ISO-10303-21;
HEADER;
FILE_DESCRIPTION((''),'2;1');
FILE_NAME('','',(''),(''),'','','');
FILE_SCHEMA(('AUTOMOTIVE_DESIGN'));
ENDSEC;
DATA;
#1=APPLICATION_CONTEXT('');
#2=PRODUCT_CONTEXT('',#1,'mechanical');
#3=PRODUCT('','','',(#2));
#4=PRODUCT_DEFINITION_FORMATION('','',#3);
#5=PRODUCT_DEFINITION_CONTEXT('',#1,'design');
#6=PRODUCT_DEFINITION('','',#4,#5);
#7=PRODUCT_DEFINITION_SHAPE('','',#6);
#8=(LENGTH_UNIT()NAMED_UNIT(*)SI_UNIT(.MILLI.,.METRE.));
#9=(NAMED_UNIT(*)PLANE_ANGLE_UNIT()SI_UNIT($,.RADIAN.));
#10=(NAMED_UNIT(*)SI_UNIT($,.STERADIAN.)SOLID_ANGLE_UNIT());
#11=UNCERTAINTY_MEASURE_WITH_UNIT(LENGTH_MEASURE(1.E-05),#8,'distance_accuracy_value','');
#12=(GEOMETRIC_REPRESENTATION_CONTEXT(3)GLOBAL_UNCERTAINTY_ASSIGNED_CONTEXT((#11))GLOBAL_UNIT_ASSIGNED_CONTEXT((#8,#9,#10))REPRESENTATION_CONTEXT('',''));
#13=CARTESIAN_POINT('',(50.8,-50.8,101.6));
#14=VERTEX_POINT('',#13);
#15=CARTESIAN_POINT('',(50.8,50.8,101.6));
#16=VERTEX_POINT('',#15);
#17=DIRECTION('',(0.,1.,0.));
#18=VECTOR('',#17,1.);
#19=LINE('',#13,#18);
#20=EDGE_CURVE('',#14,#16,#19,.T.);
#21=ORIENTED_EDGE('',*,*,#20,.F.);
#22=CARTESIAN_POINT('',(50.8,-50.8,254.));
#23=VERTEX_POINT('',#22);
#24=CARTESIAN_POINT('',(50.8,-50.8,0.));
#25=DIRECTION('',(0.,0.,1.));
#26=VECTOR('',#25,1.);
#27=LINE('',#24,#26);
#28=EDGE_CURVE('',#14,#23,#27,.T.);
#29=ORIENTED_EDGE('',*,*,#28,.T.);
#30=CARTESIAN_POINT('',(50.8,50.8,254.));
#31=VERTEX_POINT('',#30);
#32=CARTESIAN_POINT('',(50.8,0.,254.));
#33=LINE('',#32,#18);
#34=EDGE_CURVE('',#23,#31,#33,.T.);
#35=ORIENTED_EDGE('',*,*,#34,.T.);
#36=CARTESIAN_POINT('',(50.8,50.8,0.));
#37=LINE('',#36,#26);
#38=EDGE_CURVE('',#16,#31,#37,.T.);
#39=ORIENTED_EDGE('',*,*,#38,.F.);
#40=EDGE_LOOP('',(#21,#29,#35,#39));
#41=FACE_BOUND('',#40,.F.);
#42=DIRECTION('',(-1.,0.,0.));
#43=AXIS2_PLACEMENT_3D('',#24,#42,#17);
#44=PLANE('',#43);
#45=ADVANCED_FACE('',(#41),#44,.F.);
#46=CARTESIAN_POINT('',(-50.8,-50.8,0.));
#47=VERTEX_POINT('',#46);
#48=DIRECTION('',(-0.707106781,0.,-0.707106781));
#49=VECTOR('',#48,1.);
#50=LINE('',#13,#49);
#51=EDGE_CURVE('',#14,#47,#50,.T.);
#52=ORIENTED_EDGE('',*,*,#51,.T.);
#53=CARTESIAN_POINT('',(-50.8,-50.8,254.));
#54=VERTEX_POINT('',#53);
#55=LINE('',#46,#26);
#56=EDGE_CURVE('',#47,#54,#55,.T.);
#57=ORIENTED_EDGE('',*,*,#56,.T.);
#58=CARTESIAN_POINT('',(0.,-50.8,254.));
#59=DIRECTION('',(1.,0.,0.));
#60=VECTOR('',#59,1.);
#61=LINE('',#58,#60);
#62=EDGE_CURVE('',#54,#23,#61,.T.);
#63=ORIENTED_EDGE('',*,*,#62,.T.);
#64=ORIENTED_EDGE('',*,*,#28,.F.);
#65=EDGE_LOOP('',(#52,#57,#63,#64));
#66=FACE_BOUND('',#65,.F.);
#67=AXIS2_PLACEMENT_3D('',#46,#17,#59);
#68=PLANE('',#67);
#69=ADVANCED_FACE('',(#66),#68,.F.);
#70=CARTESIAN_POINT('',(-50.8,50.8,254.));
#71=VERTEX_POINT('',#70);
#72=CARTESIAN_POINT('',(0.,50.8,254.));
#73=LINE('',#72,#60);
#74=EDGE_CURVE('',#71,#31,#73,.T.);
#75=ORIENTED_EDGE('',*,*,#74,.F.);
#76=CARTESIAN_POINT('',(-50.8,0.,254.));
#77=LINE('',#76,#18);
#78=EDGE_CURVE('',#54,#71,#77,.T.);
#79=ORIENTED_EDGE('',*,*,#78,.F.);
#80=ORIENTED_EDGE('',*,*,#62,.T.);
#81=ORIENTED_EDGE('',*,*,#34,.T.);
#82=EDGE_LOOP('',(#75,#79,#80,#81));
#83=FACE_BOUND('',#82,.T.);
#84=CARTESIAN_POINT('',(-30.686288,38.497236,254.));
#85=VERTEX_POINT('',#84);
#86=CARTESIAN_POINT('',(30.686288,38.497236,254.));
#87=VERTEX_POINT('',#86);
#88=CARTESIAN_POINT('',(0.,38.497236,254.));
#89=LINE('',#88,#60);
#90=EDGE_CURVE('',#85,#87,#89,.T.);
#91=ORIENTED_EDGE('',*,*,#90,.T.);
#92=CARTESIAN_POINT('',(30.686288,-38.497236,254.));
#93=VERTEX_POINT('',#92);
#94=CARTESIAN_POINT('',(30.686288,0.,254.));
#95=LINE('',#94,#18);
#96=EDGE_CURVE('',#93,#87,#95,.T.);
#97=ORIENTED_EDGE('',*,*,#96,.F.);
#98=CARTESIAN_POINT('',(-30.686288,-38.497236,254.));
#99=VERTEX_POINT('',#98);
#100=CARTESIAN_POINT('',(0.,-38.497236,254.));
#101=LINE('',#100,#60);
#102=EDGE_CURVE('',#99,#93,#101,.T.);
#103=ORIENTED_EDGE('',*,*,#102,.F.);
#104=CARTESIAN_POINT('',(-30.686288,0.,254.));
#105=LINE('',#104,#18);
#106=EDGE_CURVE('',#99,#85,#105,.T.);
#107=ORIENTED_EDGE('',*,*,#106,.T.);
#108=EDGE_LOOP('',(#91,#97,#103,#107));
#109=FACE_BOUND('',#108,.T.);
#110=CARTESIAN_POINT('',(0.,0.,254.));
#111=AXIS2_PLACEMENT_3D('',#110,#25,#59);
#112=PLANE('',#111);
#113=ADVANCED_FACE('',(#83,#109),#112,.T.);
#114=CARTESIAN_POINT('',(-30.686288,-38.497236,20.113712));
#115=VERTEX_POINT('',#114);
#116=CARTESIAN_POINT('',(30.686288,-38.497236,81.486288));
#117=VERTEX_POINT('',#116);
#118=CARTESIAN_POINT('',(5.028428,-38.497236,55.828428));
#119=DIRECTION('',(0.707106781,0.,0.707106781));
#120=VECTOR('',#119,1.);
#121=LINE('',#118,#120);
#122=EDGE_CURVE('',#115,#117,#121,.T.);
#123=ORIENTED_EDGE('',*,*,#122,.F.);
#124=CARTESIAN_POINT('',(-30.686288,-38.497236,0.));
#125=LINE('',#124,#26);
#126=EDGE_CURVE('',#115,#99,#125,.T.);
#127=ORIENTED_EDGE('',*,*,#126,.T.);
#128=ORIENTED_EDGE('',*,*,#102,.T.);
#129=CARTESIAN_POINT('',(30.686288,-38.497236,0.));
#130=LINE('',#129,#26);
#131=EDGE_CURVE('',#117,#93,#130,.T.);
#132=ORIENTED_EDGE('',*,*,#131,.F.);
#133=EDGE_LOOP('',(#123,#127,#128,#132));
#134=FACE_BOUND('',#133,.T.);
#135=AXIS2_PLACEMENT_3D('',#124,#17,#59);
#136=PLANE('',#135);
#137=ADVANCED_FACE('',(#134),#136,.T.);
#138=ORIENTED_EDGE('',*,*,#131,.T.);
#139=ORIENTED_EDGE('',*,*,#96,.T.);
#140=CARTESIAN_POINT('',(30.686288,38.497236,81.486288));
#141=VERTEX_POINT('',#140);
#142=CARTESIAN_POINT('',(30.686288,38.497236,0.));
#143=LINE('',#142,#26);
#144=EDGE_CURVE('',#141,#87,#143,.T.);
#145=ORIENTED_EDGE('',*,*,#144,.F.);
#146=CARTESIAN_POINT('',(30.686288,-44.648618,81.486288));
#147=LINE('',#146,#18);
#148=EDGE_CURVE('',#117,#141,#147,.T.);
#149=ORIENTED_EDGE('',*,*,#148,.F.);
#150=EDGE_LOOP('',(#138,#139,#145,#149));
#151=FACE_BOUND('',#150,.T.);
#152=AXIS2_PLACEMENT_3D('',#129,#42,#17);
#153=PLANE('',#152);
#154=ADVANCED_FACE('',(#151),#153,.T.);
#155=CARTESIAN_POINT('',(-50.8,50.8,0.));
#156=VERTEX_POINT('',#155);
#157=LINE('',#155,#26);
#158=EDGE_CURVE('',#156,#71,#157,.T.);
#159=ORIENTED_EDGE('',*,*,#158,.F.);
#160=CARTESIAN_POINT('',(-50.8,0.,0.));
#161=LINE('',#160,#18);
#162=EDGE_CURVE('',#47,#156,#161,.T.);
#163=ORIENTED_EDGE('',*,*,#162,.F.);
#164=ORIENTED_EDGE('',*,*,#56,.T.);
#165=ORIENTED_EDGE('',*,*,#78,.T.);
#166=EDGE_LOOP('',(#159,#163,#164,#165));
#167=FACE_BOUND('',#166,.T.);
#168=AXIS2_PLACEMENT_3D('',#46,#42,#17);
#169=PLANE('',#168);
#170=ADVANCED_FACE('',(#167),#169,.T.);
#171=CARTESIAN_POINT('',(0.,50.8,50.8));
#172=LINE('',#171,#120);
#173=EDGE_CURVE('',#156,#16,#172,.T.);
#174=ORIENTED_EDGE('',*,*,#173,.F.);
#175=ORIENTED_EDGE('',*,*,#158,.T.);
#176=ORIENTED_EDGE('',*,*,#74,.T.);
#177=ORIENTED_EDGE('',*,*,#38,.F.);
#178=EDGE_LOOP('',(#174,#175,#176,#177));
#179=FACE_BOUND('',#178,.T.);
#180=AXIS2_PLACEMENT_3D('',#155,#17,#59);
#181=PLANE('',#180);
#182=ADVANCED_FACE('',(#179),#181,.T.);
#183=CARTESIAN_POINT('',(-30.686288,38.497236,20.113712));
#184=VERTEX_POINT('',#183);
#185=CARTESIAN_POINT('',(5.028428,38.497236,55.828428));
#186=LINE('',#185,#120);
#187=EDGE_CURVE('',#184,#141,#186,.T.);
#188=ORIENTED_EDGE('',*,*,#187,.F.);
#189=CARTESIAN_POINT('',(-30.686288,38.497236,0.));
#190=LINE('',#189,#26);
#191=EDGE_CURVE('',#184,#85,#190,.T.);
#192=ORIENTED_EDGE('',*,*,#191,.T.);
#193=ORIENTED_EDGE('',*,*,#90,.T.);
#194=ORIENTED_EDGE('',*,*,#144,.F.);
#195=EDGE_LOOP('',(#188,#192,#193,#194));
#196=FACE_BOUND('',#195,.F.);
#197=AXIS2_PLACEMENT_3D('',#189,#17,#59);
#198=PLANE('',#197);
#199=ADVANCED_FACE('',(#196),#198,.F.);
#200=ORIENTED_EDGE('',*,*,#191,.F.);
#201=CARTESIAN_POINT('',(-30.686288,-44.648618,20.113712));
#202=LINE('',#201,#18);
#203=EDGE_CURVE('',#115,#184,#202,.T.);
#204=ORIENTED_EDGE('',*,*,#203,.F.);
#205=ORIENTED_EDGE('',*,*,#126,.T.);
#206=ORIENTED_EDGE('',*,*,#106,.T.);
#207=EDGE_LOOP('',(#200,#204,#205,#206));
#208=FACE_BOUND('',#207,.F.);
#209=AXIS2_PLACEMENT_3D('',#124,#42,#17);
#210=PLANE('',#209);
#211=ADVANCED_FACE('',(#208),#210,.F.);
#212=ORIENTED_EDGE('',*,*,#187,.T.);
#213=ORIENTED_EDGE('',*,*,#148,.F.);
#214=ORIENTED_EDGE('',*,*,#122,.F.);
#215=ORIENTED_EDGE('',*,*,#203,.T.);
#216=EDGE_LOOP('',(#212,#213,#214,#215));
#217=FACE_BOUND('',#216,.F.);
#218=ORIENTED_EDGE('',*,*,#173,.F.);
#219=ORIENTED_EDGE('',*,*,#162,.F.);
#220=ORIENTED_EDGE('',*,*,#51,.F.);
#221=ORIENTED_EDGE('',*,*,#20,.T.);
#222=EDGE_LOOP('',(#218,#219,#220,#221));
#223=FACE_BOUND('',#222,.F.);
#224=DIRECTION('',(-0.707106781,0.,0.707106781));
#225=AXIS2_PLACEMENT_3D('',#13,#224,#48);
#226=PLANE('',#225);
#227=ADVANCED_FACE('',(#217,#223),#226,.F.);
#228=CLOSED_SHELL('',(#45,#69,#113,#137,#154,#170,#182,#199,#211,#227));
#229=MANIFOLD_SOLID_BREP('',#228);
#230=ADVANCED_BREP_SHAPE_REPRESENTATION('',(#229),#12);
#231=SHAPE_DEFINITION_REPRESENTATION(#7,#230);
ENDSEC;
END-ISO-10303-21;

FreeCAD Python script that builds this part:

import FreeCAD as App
import Part
import Sketcher
from FreeCAD import Vector
Q = App.Units.Quantity

doc = App.newDocument("Part")
body = doc.addObject("PartDesign::Body", "Body")

# Sketch on XY plane
sketch1 = body.newObject("Sketcher::SketchObject", "Sketch")
sketch1.AttachmentSupport = (doc.getObject("XY_Plane"), [""])
sketch1.MapMode = "FlatFace"
sketch1.addGeometry(Part.LineSegment(Vector(-25, 25, 0), Vector(-25, -25, 0)), False)
sketch1.addGeometry(Part.LineSegment(Vector(-25, -25, 0), Vector(25, -25, 0)), False)
sketch1.addGeometry(Part.LineSegment(Vector(25, -25, 0), Vector(25, 25, 0)), False)
sketch1.addGeometry(Part.LineSegment(Vector(25, 25, 0), Vector(-25, 25, 0)), False)
sketch1.addGeometry(Part.LineSegment(Vector(24, -24, 0), Vector(-24, -24, 0)), False)
sketch1.addGeometry(Part.LineSegment(Vector(-24, -24, 0), Vector(-24, 24, 0)), False)
sketch1.addGeometry(Part.LineSegment(Vector(-24, 24, 0), Vector(24, 24, 0)), False)
sketch1.addGeometry(Part.LineSegment(Vector(24, 24, 0), Vector(24, -24, 0)), False)
sketch1.addConstraint(Sketcher.Constraint("Coincident", 0, 2, 1, 1))
sketch1.addConstraint(Sketcher.Constraint("Coincident", 1, 2, 2, 1))
sketch1.addConstraint(Sketcher.Constraint("Coincident", 2, 2, 3, 1))
sketch1.addConstraint(Sketcher.Constraint("Coincident", 3, 2, 0, 1))
sketch1.addConstraint(Sketcher.Constraint("Coincident", 4, 2, 5, 1))
sketch1.addConstraint(Sketcher.Constraint("Coincident", 5, 2, 6, 1))
sketch1.addConstraint(Sketcher.Constraint("Coincident", 6, 2, 7, 1))
sketch1.addConstraint(Sketcher.Constraint("Coincident", 7, 2, 4, 1))
sketch1.addConstraint(Sketcher.Constraint("Vertical", 0))
sketch1.addConstraint(Sketcher.Constraint("Horizontal", 1))
sketch1.addConstraint(Sketcher.Constraint("Vertical", 2))
sketch1.addConstraint(Sketcher.Constraint("Horizontal", 3))
sketch1.addConstraint(Sketcher.Constraint("Horizontal", 4))
sketch1.addConstraint(Sketcher.Constraint("Vertical", 5))
sketch1.addConstraint(Sketcher.Constraint("Horizontal", 6))
sketch1.addConstraint(Sketcher.Constraint("Vertical", 7))
sketch1.addConstraint(Sketcher.Constraint("Symmetric", 0, 2, 2, 2, -1, 1))
sketch1.addConstraint(Sketcher.Constraint("Symmetric", 4, 2, 6, 2, -1, 1))
sketch1.addConstraint(Sketcher.Constraint("Equal", 3, 0))
sketch1.addConstraint(Sketcher.Constraint("Equal", 6, 5))
sketch1.addConstraint(Sketcher.Constraint("DistanceX", 1, 1, 1, 2, Q("2 in")))
sketch1.addConstraint(Sketcher.Constraint("DistanceX", 4, 2, 4, 1, Q("1.875 in")))
pad1 = body.newObject("PartDesign::Pad", "Pad")
pad1.Profile = sketch1
pad1.Length = Q("20 in")

# Sketch on XZ plane
sketch2 = body.newObject("Sketcher::SketchObject", "Sketch001")
sketch2.AttachmentSupport = (doc.getObject("XZ_Plane"), [""])
sketch2.MapMode = "FlatFace"
sketch2.AttachmentOffset = App.Placement(Vector(0, 0, 1 * 25.4), App.Rotation())
sketch2.addGeometry(Part.LineSegment(Vector(25, 46, 0), Vector(-25, 0, 0)), False)
sketch2.addGeometry(Part.LineSegment(Vector(-25, 0, 0), Vector(25, 0, 0)), False)
sketch2.addGeometry(Part.LineSegment(Vector(25, 0, 0), Vector(25, 46, 0)), False)
sketch2.addConstraint(Sketcher.Constraint("Coincident", 0, 2, 1, 1))
sketch2.addConstraint(Sketcher.Constraint("Coincident", 1, 2, 2, 1))
sketch2.addConstraint(Sketcher.Constraint("Coincident", 2, 2, 0, 1))
sketch2.addConstraint(Sketcher.Constraint("Horizontal", 1))
sketch2.addConstraint(Sketcher.Constraint("Vertical", 2))
sketch2.addConstraint(Sketcher.Constraint("Symmetric", 0, 2, 1, 2, -1, 1))
sketch2.addConstraint(Sketcher.Constraint("DistanceX", 1, 1, 1, 2, Q("2 in")))
sketch2.addConstraint(Sketcher.Constraint("DistanceY", 2, 1, 2, 2, Q("46.00206 mm")))
pocket1 = body.newObject("PartDesign::Pocket", "Pocket")
pocket1.Profile = sketch2
pocket1.Type = "ThroughAll"

# Sketch on XZ plane
sketch3 = body.newObject("Sketcher::SketchObject", "Sketch002")
sketch3.AttachmentSupport = (doc.getObject("XZ_Plane"), [""])
sketch3.MapMode = "FlatFace"
sketch3.AttachmentOffset = App.Placement(Vector(0, 0, 1 * 25.4), App.Rotation())
sketch3.addGeometry(Part.LineSegment(Vector(25, 508, 0), Vector(-25, 508, 0)), False)
sketch3.addGeometry(Part.LineSegment(Vector(-25, 508, 0), Vector(25, 469, 0)), False)
sketch3.addGeometry(Part.LineSegment(Vector(25, 469, 0), Vector(25, 508, 0)), False)
sketch3.addConstraint(Sketcher.Constraint("Coincident", 0, 2, 1, 1))
sketch3.addConstraint(Sketcher.Constraint("Coincident", 1, 2, 2, 1))
sketch3.addConstraint(Sketcher.Constraint("Coincident", 2, 2, 0, 1))
sketch3.addConstraint(Sketcher.Constraint("Horizontal", 0))
sketch3.addConstraint(Sketcher.Constraint("Vertical", 2))
sketch3.addConstraint(Sketcher.Constraint("DistanceX", 0, 2, 0, 1, Q("2 in")))
sketch3.addConstraint(Sketcher.Constraint("DistanceX", 0, 2, -1, 1, Q("1 in")))
sketch3.addConstraint(Sketcher.Constraint("DistanceY", -1, 1, 0, 2, Q("20 in")))
sketch3.addConstraint(Sketcher.Constraint("DistanceY", 2, 1, 2, 2, Q("38.566752 mm")))
pocket2 = body.newObject("PartDesign::Pocket", "Pocket001")
pocket2.Profile = sketch3
pocket2.Type = "ThroughAll"
body2 = doc.addObject("PartDesign::Body", "Body001")

# Sketch on XY plane
sketch4 = body2.newObject("Sketcher::SketchObject", "Sketch003")
sketch4.AttachmentSupport = (doc.getObject("XY_Plane001"), [""])
sketch4.MapMode = "FlatFace"
sketch4.addGeometry(Part.LineSegment(Vector(-51, 51, 0), Vector(-51, -51, 0)), False)
sketch4.addGeometry(Part.LineSegment(Vector(-51, -51, 0), Vector(51, -51, 0)), False)
sketch4.addGeometry(Part.LineSegment(Vector(51, -51, 0), Vector(51, 51, 0)), False)
sketch4.addGeometry(Part.LineSegment(Vector(51, 51, 0), Vector(-51, 51, 0)), False)
sketch4.addGeometry(Part.LineSegment(Vector(31, -38, 0), Vector(-31, -38, 0)), False)
sketch4.addGeometry(Part.LineSegment(Vector(-31, -38, 0), Vector(-31, 38, 0)), False)
sketch4.addGeometry(Part.LineSegment(Vector(-31, 38, 0), Vector(31, 38, 0)), False)
sketch4.addGeometry(Part.LineSegment(Vector(31, 38, 0), Vector(31, -38, 0)), False)
sketch4.addConstraint(Sketcher.Constraint("Coincident", 0, 2, 1, 1))
sketch4.addConstraint(Sketcher.Constraint("Coincident", 1, 2, 2, 1))
sketch4.addConstraint(Sketcher.Constraint("Coincident", 2, 2, 3, 1))
sketch4.addConstraint(Sketcher.Constraint("Coincident", 3, 2, 0, 1))
sketch4.addConstraint(Sketcher.Constraint("Coincident", 4, 2, 5, 1))
sketch4.addConstraint(Sketcher.Constraint("Coincident", 5, 2, 6, 1))
sketch4.addConstraint(Sketcher.Constraint("Coincident", 6, 2, 7, 1))
sketch4.addConstraint(Sketcher.Constraint("Coincident", 7, 2, 4, 1))
sketch4.addConstraint(Sketcher.Constraint("Vertical", 0))
sketch4.addConstraint(Sketcher.Constraint("Horizontal", 1))
sketch4.addConstraint(Sketcher.Constraint("Vertical", 2))
sketch4.addConstraint(Sketcher.Constraint("Horizontal", 3))
sketch4.addConstraint(Sketcher.Constraint("Horizontal", 4))
sketch4.addConstraint(Sketcher.Constraint("Vertical", 5))
sketch4.addConstraint(Sketcher.Constraint("Horizontal", 6))
sketch4.addConstraint(Sketcher.Constraint("Vertical", 7))
sketch4.addConstraint(Sketcher.Constraint("Symmetric", 0, 2, 2, 2, -1, 1))
sketch4.addConstraint(Sketcher.Constraint("Symmetric", 4, 2, 6, 2, -1, 1))
sketch4.addConstraint(Sketcher.Constraint("Equal", 3, 0))
sketch4.addConstraint(Sketcher.Constraint("DistanceX", 1, 1, 1, 2, Q("4 in")))
sketch4.addConstraint(Sketcher.Constraint("DistanceX", 4, 2, 4, 1, Q("61.372575 mm")))
sketch4.addConstraint(Sketcher.Constraint("DistanceY", 5, 1, 5, 2, Q("76.994473 mm")))
pad2 = body2.newObject("PartDesign::Pad", "Pad001")
pad2.Profile = sketch4
pad2.Length = Q("10 in")

# Sketch on XZ plane
sketch5 = body2.newObject("Sketcher::SketchObject", "Sketch004")
sketch5.AttachmentSupport = (doc.getObject("XZ_Plane001"), [""])
sketch5.MapMode = "FlatFace"
sketch5.AttachmentOffset = App.Placement(Vector(0, 0, 2 * 25.4), App.Rotation())
sketch5.addGeometry(Part.LineSegment(Vector(51, 102, 0), Vector(-51, 0, 0)), False)
sketch5.addGeometry(Part.LineSegment(Vector(-51, 0, 0), Vector(51, 0, 0)), False)
sketch5.addGeometry(Part.LineSegment(Vector(51, 0, 0), Vector(51, 102, 0)), False)
sketch5.addConstraint(Sketcher.Constraint("Coincident", 0, 2, 1, 1))
sketch5.addConstraint(Sketcher.Constraint("Coincident", 1, 2, 2, 1))
sketch5.addConstraint(Sketcher.Constraint("Coincident", 2, 2, 0, 1))
sketch5.addConstraint(Sketcher.Constraint("Horizontal", 1))
sketch5.addConstraint(Sketcher.Constraint("Vertical", 2))
sketch5.addConstraint(Sketcher.Constraint("Symmetric", 0, 2, 1, 2, -1, 1))
sketch5.addConstraint(Sketcher.Constraint("Equal", 1, 2))
sketch5.addConstraint(Sketcher.Constraint("DistanceX", 1, 1, 1, 2, Q("4 in")))
pocket3 = body2.newObject("PartDesign::Pocket", "Pocket002")
pocket3.Profile = sketch5
pocket3.Type = "ThroughAll"
body.Visibility = False

doc.recompute()
